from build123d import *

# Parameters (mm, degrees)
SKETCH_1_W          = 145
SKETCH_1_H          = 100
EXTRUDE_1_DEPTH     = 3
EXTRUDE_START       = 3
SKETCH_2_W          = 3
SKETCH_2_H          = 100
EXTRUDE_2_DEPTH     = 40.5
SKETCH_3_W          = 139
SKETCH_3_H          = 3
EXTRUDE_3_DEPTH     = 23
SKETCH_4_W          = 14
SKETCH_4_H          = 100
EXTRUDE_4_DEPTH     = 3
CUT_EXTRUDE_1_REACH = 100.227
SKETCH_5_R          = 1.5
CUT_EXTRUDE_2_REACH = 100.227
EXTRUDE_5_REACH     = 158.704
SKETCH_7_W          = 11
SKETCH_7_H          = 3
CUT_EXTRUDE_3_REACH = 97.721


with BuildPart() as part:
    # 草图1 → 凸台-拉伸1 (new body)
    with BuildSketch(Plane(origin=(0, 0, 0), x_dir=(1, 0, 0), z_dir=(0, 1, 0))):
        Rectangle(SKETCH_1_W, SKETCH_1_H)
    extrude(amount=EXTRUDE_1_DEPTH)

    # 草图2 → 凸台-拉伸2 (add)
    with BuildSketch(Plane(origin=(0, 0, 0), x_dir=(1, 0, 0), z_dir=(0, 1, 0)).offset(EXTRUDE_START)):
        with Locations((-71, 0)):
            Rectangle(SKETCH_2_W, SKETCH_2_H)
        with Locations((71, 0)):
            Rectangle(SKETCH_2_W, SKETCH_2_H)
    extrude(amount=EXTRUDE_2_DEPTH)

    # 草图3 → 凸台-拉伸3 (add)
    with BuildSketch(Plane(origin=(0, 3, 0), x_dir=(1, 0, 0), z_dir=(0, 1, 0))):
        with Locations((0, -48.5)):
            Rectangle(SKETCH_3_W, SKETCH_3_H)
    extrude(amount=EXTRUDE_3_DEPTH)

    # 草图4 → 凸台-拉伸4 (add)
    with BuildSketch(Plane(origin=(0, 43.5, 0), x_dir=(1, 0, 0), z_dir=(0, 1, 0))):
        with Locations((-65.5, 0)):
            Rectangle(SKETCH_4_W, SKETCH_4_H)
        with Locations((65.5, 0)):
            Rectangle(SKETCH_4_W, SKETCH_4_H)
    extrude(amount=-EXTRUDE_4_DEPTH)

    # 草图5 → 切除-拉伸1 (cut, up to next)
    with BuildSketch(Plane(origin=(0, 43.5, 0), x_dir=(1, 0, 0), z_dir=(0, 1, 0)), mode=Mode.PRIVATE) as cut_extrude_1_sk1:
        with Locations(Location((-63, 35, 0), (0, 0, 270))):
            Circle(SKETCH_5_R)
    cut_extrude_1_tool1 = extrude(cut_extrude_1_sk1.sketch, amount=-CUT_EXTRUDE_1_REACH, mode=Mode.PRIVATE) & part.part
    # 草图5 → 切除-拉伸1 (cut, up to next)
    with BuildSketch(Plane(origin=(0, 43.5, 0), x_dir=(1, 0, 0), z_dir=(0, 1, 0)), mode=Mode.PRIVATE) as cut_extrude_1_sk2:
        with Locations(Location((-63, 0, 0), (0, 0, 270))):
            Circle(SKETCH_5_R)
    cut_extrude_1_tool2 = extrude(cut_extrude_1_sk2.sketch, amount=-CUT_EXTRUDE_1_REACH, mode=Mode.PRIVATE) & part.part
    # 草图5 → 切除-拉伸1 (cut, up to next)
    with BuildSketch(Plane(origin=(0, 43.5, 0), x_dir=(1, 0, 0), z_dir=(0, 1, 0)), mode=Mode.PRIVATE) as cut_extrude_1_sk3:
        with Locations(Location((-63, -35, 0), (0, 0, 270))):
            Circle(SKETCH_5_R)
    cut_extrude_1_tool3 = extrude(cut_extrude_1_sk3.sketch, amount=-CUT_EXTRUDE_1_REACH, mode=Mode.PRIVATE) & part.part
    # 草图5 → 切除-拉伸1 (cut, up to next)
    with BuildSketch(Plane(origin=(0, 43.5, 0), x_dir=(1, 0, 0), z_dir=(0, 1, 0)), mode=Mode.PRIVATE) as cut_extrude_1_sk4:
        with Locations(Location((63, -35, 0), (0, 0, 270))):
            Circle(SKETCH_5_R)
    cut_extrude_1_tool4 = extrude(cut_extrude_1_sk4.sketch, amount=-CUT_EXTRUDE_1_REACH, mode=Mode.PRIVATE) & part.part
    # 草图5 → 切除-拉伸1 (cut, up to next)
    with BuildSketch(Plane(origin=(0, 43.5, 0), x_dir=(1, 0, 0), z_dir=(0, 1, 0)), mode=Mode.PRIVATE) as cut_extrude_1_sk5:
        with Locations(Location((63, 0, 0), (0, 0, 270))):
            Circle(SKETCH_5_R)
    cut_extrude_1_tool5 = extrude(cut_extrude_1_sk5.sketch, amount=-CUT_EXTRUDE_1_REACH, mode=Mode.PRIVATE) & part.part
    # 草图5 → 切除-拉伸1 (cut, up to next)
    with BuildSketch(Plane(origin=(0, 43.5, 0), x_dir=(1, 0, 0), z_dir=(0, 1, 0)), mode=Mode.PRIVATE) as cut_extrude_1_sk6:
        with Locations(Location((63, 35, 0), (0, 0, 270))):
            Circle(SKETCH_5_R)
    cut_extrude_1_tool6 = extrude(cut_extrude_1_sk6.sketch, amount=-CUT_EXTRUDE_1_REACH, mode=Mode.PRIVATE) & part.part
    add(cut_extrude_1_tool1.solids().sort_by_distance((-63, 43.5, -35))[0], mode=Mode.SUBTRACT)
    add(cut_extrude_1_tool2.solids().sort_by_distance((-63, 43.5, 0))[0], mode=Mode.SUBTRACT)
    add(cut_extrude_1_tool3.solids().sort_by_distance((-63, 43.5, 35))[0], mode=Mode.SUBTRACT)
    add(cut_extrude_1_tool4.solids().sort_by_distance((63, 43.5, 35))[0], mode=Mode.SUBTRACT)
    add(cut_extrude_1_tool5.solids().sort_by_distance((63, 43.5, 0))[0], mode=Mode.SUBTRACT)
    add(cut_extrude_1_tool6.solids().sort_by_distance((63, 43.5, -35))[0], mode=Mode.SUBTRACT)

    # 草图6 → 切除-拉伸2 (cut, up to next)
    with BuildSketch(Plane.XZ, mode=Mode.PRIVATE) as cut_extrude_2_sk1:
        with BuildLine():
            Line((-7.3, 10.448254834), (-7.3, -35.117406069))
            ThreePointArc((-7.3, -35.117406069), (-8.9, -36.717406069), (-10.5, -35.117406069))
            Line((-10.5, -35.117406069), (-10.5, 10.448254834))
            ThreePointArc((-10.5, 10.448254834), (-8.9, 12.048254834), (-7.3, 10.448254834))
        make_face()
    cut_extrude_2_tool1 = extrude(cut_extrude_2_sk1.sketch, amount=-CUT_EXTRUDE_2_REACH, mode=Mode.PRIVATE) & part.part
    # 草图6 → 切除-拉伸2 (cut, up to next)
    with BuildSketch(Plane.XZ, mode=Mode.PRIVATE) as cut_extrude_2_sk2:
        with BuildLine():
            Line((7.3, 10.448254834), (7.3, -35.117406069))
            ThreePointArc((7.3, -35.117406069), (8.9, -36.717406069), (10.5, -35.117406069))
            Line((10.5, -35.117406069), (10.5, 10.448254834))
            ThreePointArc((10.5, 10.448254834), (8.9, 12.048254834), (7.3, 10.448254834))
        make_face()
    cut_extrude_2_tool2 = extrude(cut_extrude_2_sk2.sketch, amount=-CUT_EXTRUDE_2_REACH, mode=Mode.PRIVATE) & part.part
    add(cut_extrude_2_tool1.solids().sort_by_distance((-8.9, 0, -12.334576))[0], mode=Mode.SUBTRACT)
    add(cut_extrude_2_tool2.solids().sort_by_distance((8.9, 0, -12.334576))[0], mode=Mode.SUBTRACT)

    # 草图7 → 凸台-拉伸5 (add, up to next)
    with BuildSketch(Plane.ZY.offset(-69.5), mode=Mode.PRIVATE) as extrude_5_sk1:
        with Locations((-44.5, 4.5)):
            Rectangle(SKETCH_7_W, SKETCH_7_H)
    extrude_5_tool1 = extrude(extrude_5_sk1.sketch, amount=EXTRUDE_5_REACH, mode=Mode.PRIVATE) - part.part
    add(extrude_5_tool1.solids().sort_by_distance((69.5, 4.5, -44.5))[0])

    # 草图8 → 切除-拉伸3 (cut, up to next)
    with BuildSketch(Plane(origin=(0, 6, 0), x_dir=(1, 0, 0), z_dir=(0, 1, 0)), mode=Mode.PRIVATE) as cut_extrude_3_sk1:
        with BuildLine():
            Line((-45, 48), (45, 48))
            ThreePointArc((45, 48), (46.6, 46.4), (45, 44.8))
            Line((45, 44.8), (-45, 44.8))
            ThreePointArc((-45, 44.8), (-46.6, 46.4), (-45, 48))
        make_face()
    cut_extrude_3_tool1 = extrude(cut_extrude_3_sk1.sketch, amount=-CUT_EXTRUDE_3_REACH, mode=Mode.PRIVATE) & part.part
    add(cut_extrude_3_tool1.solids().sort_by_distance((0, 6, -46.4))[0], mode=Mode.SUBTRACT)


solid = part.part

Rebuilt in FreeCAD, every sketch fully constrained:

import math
import FreeCAD as App
import Part
import Sketcher
from FreeCAD import Vector

doc = App.newDocument("Part")
body = doc.addObject("PartDesign::Body", "Body")

# Sketch on XZ plane
sketch1 = doc.addObject("Sketcher::SketchObject", "Sketch")
body.addObject(sketch1)
sketch1.AttachmentSupport = (doc.XZ_Plane, [""])
sketch1.MapMode = "FlatFace"
sketch1.addGeometry([
    Part.LineSegment(Vector(-72, -50, 0), Vector(-72, 50, 0)),
    Part.LineSegment(Vector(-72, 50, 0), Vector(72, 50, 0)),
    Part.LineSegment(Vector(72, 50, 0), Vector(72, -50, 0)),
    Part.LineSegment(Vector(72, -50, 0), Vector(-72, -50, 0)),
], False)
sketch1.addConstraint([
    Sketcher.Constraint("Coincident", 0, 2, 1, 1),
    Sketcher.Constraint("Coincident", 1, 2, 2, 1),
    Sketcher.Constraint("Coincident", 2, 2, 3, 1),
    Sketcher.Constraint("Coincident", 3, 2, 0, 1),
    Sketcher.Constraint("Vertical", 0),
    Sketcher.Constraint("Horizontal", 1),
    Sketcher.Constraint("Vertical", 2),
    Sketcher.Constraint("Horizontal", 3),
    Sketcher.Constraint("Symmetric", 0, 2, 2, 2, -1, 1),
    Sketcher.Constraint("DistanceX", 1, 1, 1, 2, 145.0),
    Sketcher.Constraint("DistanceY", 0, 1, 0, 2, 100.0),
])
pad1 = doc.addObject("PartDesign::Pad", "Pad")
body.addObject(pad1)
pad1.Profile = sketch1
pad1.Length = 3
pad1.Reversed = True

# Sketch on XZ plane
sketch2 = doc.addObject("Sketcher::SketchObject", "Sketch001")
body.addObject(sketch2)
sketch2.AttachmentSupport = (doc.XZ_Plane, [""])
sketch2.MapMode = "FlatFace"
sketch2.AttachmentOffset = App.Placement(Vector(0, 0, -3), App.Rotation())
sketch2.addGeometry([
    Part.LineSegment(Vector(-72.5, -50, 0), Vector(-72.5, 50, 0)),  # 0
    Part.LineSegment(Vector(-72.5, 50, 0), Vector(-69.5, 50, 0)),  # 1
    Part.LineSegment(Vector(-69.5, 50, 0), Vector(-69.5, -50, 0)),  # 2
    Part.LineSegment(Vector(-69.5, -50, 0), Vector(-72.5, -50, 0)),  # 3
    Part.LineSegment(Vector(69.5, -50, 0), Vector(69.5, 50, 0)),  # 4
    Part.LineSegment(Vector(69.5, 50, 0), Vector(72.5, 50, 0)),  # 5
    Part.LineSegment(Vector(72.5, 50, 0), Vector(72.5, -50, 0)),  # 6
    Part.LineSegment(Vector(72.5, -50, 0), Vector(69.5, -50, 0)),  # 7
], False)
sketch2.addConstraint([
    Sketcher.Constraint("Coincident", 0, 2, 1, 1),
    Sketcher.Constraint("Coincident", 1, 2, 2, 1),
    Sketcher.Constraint("Coincident", 2, 2, 3, 1),
    Sketcher.Constraint("Coincident", 3, 2, 0, 1),
    Sketcher.Constraint("Coincident", 4, 2, 5, 1),
    Sketcher.Constraint("Coincident", 5, 2, 6, 1),
    Sketcher.Constraint("Coincident", 6, 2, 7, 1),
    Sketcher.Constraint("Coincident", 7, 2, 4, 1),
    Sketcher.Constraint("Vertical", 0),
    Sketcher.Constraint("Horizontal", 1),
    Sketcher.Constraint("Vertical", 2),
    Sketcher.Constraint("Horizontal", 3),
    Sketcher.Constraint("Vertical", 4),
    Sketcher.Constraint("Horizontal", 5),
    Sketcher.Constraint("Vertical", 6),
    Sketcher.Constraint("Horizontal", 7),
    Sketcher.Constraint("Symmetric", 2, 2, 4, 2, -1, 1),
    Sketcher.Constraint("Symmetric", 0, 2, 6, 2, -1, 1),
    Sketcher.Constraint("Horizontal", 1, 2, 4, 2),
    Sketcher.Constraint("DistanceX", 1, 1, 1, 2, 3.0),
    Sketcher.Constraint("DistanceY", 0, 1, 0, 2, 100.0),
    Sketcher.Constraint("DistanceX", 1, 2, 4, 2, 139.0),
])
pad2 = doc.addObject("PartDesign::Pad", "Pad001")
body.addObject(pad2)
pad2.Profile = sketch2
pad2.Length = 40.5
pad2.Reversed = True

# Sketch on XZ plane
sketch3 = doc.addObject("Sketcher::SketchObject", "Sketch002")
body.addObject(sketch3)
sketch3.AttachmentSupport = (doc.XZ_Plane, [""])
sketch3.MapMode = "FlatFace"
sketch3.AttachmentOffset = App.Placement(Vector(0, 0, -3), App.Rotation())
sketch3.addGeometry([
    Part.LineSegment(Vector(-69.5, 47, 0), Vector(-69.5, 50, 0)),
    Part.LineSegment(Vector(-69.5, 50, 0), Vector(69.5, 50, 0)),
    Part.LineSegment(Vector(69.5, 50, 0), Vector(69.5, 47, 0)),
    Part.LineSegment(Vector(69.5, 47, 0), Vector(-69.5, 47, 0)),
], False)
sketch3.addConstraint([
    Sketcher.Constraint("Coincident", 0, 2, 1, 1),
    Sketcher.Constraint("Coincident", 1, 2, 2, 1),
    Sketcher.Constraint("Coincident", 2, 2, 3, 1),
    Sketcher.Constraint("Coincident", 3, 2, 0, 1),
    Sketcher.Constraint("Vertical", 0),
    Sketcher.Constraint("Horizontal", 1),
    Sketcher.Constraint("Vertical", 2),
    Sketcher.Constraint("Horizontal", 3),
    Sketcher.Constraint("DistanceX", 1, 1, 1, 2, 139.0),
    Sketcher.Constraint("DistanceY", 0, 1, 0, 2, 3.0),
    Sketcher.Constraint("DistanceY", -1, 1, 0, 2, 50.0),
    Sketcher.Constraint("DistanceX", 0, 2, -1, 1, 69.5),
])
pad3 = doc.addObject("PartDesign::Pad", "Pad002")
body.addObject(pad3)
pad3.Profile = sketch3
pad3.Length = 23
pad3.Reversed = True

# Sketch on XZ plane
sketch4 = doc.addObject("Sketcher::SketchObject", "Sketch003")
body.addObject(sketch4)
sketch4.AttachmentSupport = (doc.XZ_Plane, [""])
sketch4.MapMode = "FlatFace"
sketch4.AttachmentOffset = App.Placement(Vector(0, 0, -43.5), App.Rotation())
sketch4.addGeometry([
    Part.LineSegment(Vector(-72, -50, 0), Vector(-72, 50, 0)),  # 0
    Part.LineSegment(Vector(-72, 50, 0), Vector(-58, 50, 0)),  # 1
    Part.LineSegment(Vector(-58, 50, 0), Vector(-58, -50, 0)),  # 2
    Part.LineSegment(Vector(-58, -50, 0), Vector(-72, -50, 0)),  # 3
    Part.LineSegment(Vector(58, -50, 0), Vector(58, 50, 0)),  # 4
    Part.LineSegment(Vector(58, 50, 0), Vector(72, 50, 0)),  # 5
    Part.LineSegment(Vector(72, 50, 0), Vector(72, -50, 0)),  # 6
    Part.LineSegment(Vector(72, -50, 0), Vector(58, -50, 0)),  # 7
], False)
sketch4.addConstraint([
    Sketcher.Constraint("Coincident", 0, 2, 1, 1),
    Sketcher.Constraint("Coincident", 1, 2, 2, 1),
    Sketcher.Constraint("Coincident", 2, 2, 3, 1),
    Sketcher.Constraint("Coincident", 3, 2, 0, 1),
    Sketcher.Constraint("Coincident", 4, 2, 5, 1),
    Sketcher.Constraint("Coincident", 5, 2, 6, 1),
    Sketcher.Constraint("Coincident", 6, 2, 7, 1),
    Sketcher.Constraint("Coincident", 7, 2, 4, 1),
    Sketcher.Constraint("Vertical", 0),
    Sketcher.Constraint("Horizontal", 1),
    Sketcher.Constraint("Vertical", 2),
    Sketcher.Constraint("Horizontal", 3),
    Sketcher.Constraint("Vertical", 4),
    Sketcher.Constraint("Horizontal", 5),
    Sketcher.Constraint("Vertical", 6),
    Sketcher.Constraint("Horizontal", 7),
    Sketcher.Constraint("Symmetric", 2, 2, 4, 2, -1, 1),
    Sketcher.Constraint("Symmetric", 0, 2, 6, 2, -1, 1),
    Sketcher.Constraint("Horizontal", 1, 2, 4, 2),
    Sketcher.Constraint("DistanceX", 1, 1, 1, 2, 14.0),
    Sketcher.Constraint("DistanceY", 0, 1, 0, 2, 100.0),
    Sketcher.Constraint("DistanceX", 1, 2, 4, 2, 117.0),
])
pad4 = doc.addObject("PartDesign::Pad", "Pad003")
body.addObject(pad4)
pad4.Profile = sketch4
pad4.Length = 3

# Sketch on XZ plane
sketch5 = doc.addObject("Sketcher::SketchObject", "Sketch004")
body.addObject(sketch5)
sketch5.AttachmentSupport = (doc.XZ_Plane, [""])
sketch5.MapMode = "FlatFace"
sketch5.AttachmentOffset = App.Placement(Vector(0, 0, -43.5), App.Rotation())
sketch5.addGeometry(Part.Circle(Vector(-63, -35, 0), Vector(0, 0, 1), 1.5), False)
sketch5.addConstraint([
    Sketcher.Constraint("Diameter", 0, 3.0),
    Sketcher.Constraint("DistanceX", 0, 3, -1, 1, 63.0),
    Sketcher.Constraint("DistanceY", 0, 3, -1, 1, 35.0),
])
pocket1 = doc.addObject("PartDesign::Pocket", "Pocket")
body.addObject(pocket1)
pocket1.Profile = sketch5
pocket1.Type = "UpToFirst"
pocket1.Reversed = True

# Sketch on XZ plane
sketch6 = doc.addObject("Sketcher::SketchObject", "Sketch005")
body.addObject(sketch6)
sketch6.AttachmentSupport = (doc.XZ_Plane, [""])
sketch6.MapMode = "FlatFace"
sketch6.AttachmentOffset = App.Placement(Vector(0, 0, -43.5), App.Rotation())
sketch6.addGeometry(Part.Circle(Vector(-63, 0, 0), Vector(0, 0, 1), 1.5), False)
sketch6.addConstraint([
    Sketcher.Constraint("PointOnObject", 0, 3, -1),
    Sketcher.Constraint("Diameter", 0, 3.0),
    Sketcher.Constraint("DistanceX", 0, 3, -1, 1, 63.0),
])
pocket2 = doc.addObject("PartDesign::Pocket", "Pocket001")
body.addObject(pocket2)
pocket2.Profile = sketch6
pocket2.Type = "UpToFirst"
pocket2.Reversed = True

# Sketch on XZ plane
sketch7 = doc.addObject("Sketcher::SketchObject", "Sketch006")
body.addObject(sketch7)
sketch7.AttachmentSupport = (doc.XZ_Plane, [""])
sketch7.MapMode = "FlatFace"
sketch7.AttachmentOffset = App.Placement(Vector(0, 0, -43.5), App.Rotation())
sketch7.addGeometry(Part.Circle(Vector(-63, 35, 0), Vector(0, 0, 1), 1.5), False)
sketch7.addConstraint([
    Sketcher.Constraint("Diameter", 0, 3.0),
    Sketcher.Constraint("DistanceX", 0, 3, -1, 1, 63.0),
    Sketcher.Constraint("DistanceY", -1, 1, 0, 3, 35.0),
])
pocket3 = doc.addObject("PartDesign::Pocket", "Pocket002")
body.addObject(pocket3)
pocket3.Profile = sketch7
pocket3.Type = "UpToFirst"
pocket3.Reversed = True

# Sketch on XZ plane
sketch8 = doc.addObject("Sketcher::SketchObject", "Sketch007")
body.addObject(sketch8)
sketch8.AttachmentSupport = (doc.XZ_Plane, [""])
sketch8.MapMode = "FlatFace"
sketch8.AttachmentOffset = App.Placement(Vector(0, 0, -43.5), App.Rotation())
sketch8.addGeometry(Part.Circle(Vector(63, 35, 0), Vector(0, 0, 1), 1.5), False)
sketch8.addConstraint([
    Sketcher.Constraint("Diameter", 0, 3.0),
    Sketcher.Constraint("DistanceX", -1, 1, 0, 3, 63.0),
    Sketcher.Constraint("DistanceY", -1, 1, 0, 3, 35.0),
])
pocket4 = doc.addObject("PartDesign::Pocket", "Pocket003")
body.addObject(pocket4)
pocket4.Profile = sketch8
pocket4.Type = "UpToFirst"
pocket4.Reversed = True

# Sketch on XZ plane
sketch9 = doc.addObject("Sketcher::SketchObject", "Sketch008")
body.addObject(sketch9)
sketch9.AttachmentSupport = (doc.XZ_Plane, [""])
sketch9.MapMode = "FlatFace"
sketch9.AttachmentOffset = App.Placement(Vector(0, 0, -43.5), App.Rotation())
sketch9.addGeometry(Part.Circle(Vector(63, 0, 0), Vector(0, 0, 1), 1.5), False)
sketch9.addConstraint([
    Sketcher.Constraint("PointOnObject", 0, 3, -1),
    Sketcher.Constraint("Diameter", 0, 3.0),
    Sketcher.Constraint("DistanceX", -1, 1, 0, 3, 63.0),
])
pocket5 = doc.addObject("PartDesign::Pocket", "Pocket004")
body.addObject(pocket5)
pocket5.Profile = sketch9
pocket5.Type = "UpToFirst"
pocket5.Reversed = True

# Sketch on XZ plane
sketch10 = doc.addObject("Sketcher::SketchObject", "Sketch009")
body.addObject(sketch10)
sketch10.AttachmentSupport = (doc.XZ_Plane, [""])
sketch10.MapMode = "FlatFace"
sketch10.AttachmentOffset = App.Placement(Vector(0, 0, -43.5), App.Rotation())
sketch10.addGeometry(Part.Circle(Vector(63, -35, 0), Vector(0, 0, 1), 1.5), False)
sketch10.addConstraint([
    Sketcher.Constraint("Diameter", 0, 3.0),
    Sketcher.Constraint("DistanceX", -1, 1, 0, 3, 63.0),
    Sketcher.Constraint("DistanceY", 0, 3, -1, 1, 35.0),
])
pocket6 = doc.addObject("PartDesign::Pocket", "Pocket005")
body.addObject(pocket6)
pocket6.Profile = sketch10
pocket6.Type = "UpToFirst"
pocket6.Reversed = True

# Sketch on XZ plane
sketch11 = doc.addObject("Sketcher::SketchObject", "Sketch010")
body.addObject(sketch11)
sketch11.AttachmentSupport = (doc.XZ_Plane, [""])
sketch11.MapMode = "FlatFace"
sketch11.addGeometry([
    Part.LineSegment(Vector(-7.3, -35.1, 0), Vector(-7.3, 10.4, 0)),
    Part.ArcOfCircle(Part.Circle(Vector(-8.9, 10.4, 0), Vector(0, 0, 1), 1.6), math.radians(0), math.radians(180)),
    Part.LineSegment(Vector(-10.5, 10.4, 0), Vector(-10.5, -35.1, 0)),
    Part.ArcOfCircle(Part.Circle(Vector(-8.9, -35.1, 0), Vector(0, 0, 1), 1.6), math.radians(180), math.radians(360)),
], False)
sketch11.addConstraint([
    Sketcher.Constraint("Tangent", 0, 2, 1, 1),
    Sketcher.Constraint("Tangent", 1, 2, 2, 1),
    Sketcher.Constraint("Tangent", 2, 2, 3, 1),
    Sketcher.Constraint("Tangent", 3, 2, 0, 1),
    Sketcher.Constraint("Vertical", 0),
    Sketcher.Constraint("Vertical", 2),
    Sketcher.Constraint("Radius", 1, 1.6),
    Sketcher.Constraint("DistanceX", 1, 3, -1, 1, 8.9),
    Sketcher.Constraint("DistanceY", 0, 1, 0, 2, 45.565661),
    Sketcher.Constraint("DistanceY", -1, 1, 1, 3, 10.448255),
])
pocket7 = doc.addObject("PartDesign::Pocket", "Pocket006")
body.addObject(pocket7)
pocket7.Profile = sketch11
pocket7.Type = "UpToFirst"

# Sketch on XZ plane
sketch12 = doc.addObject("Sketcher::SketchObject", "Sketch011")
body.addObject(sketch12)
sketch12.AttachmentSupport = (doc.XZ_Plane, [""])
sketch12.MapMode = "FlatFace"
sketch12.addGeometry([
    Part.LineSegment(Vector(7.3, 10.4, 0), Vector(7.3, -35.1, 0)),
    Part.ArcOfCircle(Part.Circle(Vector(8.9, -35.1, 0), Vector(0, 0, 1), 1.6), math.radians(180), math.radians(360)),
    Part.LineSegment(Vector(10.5, -35.1, 0), Vector(10.5, 10.4, 0)),
    Part.ArcOfCircle(Part.Circle(Vector(8.9, 10.4, 0), Vector(0, 0, 1), 1.6), math.radians(0), math.radians(180)),
], False)
sketch12.addConstraint([
    Sketcher.Constraint("Tangent", 0, 2, 1, 1),
    Sketcher.Constraint("Tangent", 1, 2, 2, 1),
    Sketcher.Constraint("Tangent", 2, 2, 3, 1),
    Sketcher.Constraint("Tangent", 3, 2, 0, 1),
    Sketcher.Constraint("Vertical", 0),
    Sketcher.Constraint("Vertical", 2),
    Sketcher.Constraint("Radius", 1, 1.6),
    Sketcher.Constraint("DistanceX", -1, 1, 1, 3, 8.9),
    Sketcher.Constraint("DistanceY", 0, 2, 0, 1, 45.565661),
    Sketcher.Constraint("DistanceY", 1, 3, -1, 1, 35.117406),
])
pocket8 = doc.addObject("PartDesign::Pocket", "Pocket007")
body.addObject(pocket8)
pocket8.Profile = sketch12
pocket8.Type = "UpToFirst"

# Sketch on YZ plane
sketch13 = doc.addObject("Sketcher::SketchObject", "Sketch012")
body.addObject(sketch13)
sketch13.AttachmentSupport = (doc.YZ_Plane, [""])
sketch13.MapMode = "FlatFace"
sketch13.AttachmentOffset = App.Placement(Vector(0, 0, 69.5), App.Rotation())
sketch13.addGeometry([
    Part.LineSegment(Vector(6, -50, 0), Vector(3, -50, 0)),
    Part.LineSegment(Vector(3, -50, 0), Vector(3, -39, 0)),
    Part.LineSegment(Vector(3, -39, 0), Vector(6, -39, 0)),
    Part.LineSegment(Vector(6, -39, 0), Vector(6, -50, 0)),
], False)
sketch13.addConstraint([
    Sketcher.Constraint("Coincident", 0, 2, 1, 1),
    Sketcher.Constraint("Coincident", 1, 2, 2, 1),
    Sketcher.Constraint("Coincident", 2, 2, 3, 1),
    Sketcher.Constraint("Coincident", 3, 2, 0, 1),
    Sketcher.Constraint("Horizontal", 0),
    Sketcher.Constraint("Vertical", 1),
    Sketcher.Constraint("Horizontal", 2),
    Sketcher.Constraint("Vertical", 3),
    Sketcher.Constraint("DistanceX", 0, 2, 0, 1, 3.0),
    Sketcher.Constraint("DistanceY", 1, 1, 1, 2, 11.0),
    Sketcher.Constraint("DistanceX", -1, 1, 0, 2, 3.0),
    Sketcher.Constraint("DistanceY", 0, 2, -1, 1, 50.0),
])
pad5 = doc.addObject("PartDesign::Pad", "Pad004")
body.addObject(pad5)
pad5.Profile = sketch13
pad5.Type = "UpToFirst"
pad5.Reversed = True

# Sketch on XZ plane
sketch14 = doc.addObject("Sketcher::SketchObject", "Sketch013")
body.addObject(sketch14)
sketch14.AttachmentSupport = (doc.XZ_Plane, [""])
sketch14.MapMode = "FlatFace"
sketch14.AttachmentOffset = App.Placement(Vector(0, 0, -6), App.Rotation())
sketch14.addGeometry([
    Part.LineSegment(Vector(45, -48, 0), Vector(-45, -48, 0)),
    Part.ArcOfCircle(Part.Circle(Vector(-45, -46.4, 0), Vector(0, 0, 1), 1.6), math.radians(90), math.radians(270)),
    Part.LineSegment(Vector(-45, -44.8, 0), Vector(45, -44.8, 0)),
    Part.ArcOfCircle(Part.Circle(Vector(45, -46.4, 0), Vector(0, 0, 1), 1.6), math.radians(-90), math.radians(90)),
], False)
sketch14.addConstraint([
    Sketcher.Constraint("Tangent", 0, 2, 1, 2),
    Sketcher.Constraint("Tangent", 1, 1, 2, 1),
    Sketcher.Constraint("Tangent", 2, 2, 3, 2),
    Sketcher.Constraint("Tangent", 3, 1, 0, 1),
    Sketcher.Constraint("Horizontal", 0),
    Sketcher.Constraint("Horizontal", 2),
    Sketcher.Constraint("Radius", 1, 1.6),
    Sketcher.Constraint("DistanceX", 0, 2, 0, 1, 90.0),
    Sketcher.Constraint("DistanceX", 1, 3, -1, 1, 45.0),
    Sketcher.Constraint("DistanceY", 0, 2, -1, 1, 48.0),
])
pocket9 = doc.addObject("PartDesign::Pocket", "Pocket008")
body.addObject(pocket9)
pocket9.Profile = sketch14
pocket9.Type = "UpToFirst"
pocket9.Reversed = True

doc.recompute()
